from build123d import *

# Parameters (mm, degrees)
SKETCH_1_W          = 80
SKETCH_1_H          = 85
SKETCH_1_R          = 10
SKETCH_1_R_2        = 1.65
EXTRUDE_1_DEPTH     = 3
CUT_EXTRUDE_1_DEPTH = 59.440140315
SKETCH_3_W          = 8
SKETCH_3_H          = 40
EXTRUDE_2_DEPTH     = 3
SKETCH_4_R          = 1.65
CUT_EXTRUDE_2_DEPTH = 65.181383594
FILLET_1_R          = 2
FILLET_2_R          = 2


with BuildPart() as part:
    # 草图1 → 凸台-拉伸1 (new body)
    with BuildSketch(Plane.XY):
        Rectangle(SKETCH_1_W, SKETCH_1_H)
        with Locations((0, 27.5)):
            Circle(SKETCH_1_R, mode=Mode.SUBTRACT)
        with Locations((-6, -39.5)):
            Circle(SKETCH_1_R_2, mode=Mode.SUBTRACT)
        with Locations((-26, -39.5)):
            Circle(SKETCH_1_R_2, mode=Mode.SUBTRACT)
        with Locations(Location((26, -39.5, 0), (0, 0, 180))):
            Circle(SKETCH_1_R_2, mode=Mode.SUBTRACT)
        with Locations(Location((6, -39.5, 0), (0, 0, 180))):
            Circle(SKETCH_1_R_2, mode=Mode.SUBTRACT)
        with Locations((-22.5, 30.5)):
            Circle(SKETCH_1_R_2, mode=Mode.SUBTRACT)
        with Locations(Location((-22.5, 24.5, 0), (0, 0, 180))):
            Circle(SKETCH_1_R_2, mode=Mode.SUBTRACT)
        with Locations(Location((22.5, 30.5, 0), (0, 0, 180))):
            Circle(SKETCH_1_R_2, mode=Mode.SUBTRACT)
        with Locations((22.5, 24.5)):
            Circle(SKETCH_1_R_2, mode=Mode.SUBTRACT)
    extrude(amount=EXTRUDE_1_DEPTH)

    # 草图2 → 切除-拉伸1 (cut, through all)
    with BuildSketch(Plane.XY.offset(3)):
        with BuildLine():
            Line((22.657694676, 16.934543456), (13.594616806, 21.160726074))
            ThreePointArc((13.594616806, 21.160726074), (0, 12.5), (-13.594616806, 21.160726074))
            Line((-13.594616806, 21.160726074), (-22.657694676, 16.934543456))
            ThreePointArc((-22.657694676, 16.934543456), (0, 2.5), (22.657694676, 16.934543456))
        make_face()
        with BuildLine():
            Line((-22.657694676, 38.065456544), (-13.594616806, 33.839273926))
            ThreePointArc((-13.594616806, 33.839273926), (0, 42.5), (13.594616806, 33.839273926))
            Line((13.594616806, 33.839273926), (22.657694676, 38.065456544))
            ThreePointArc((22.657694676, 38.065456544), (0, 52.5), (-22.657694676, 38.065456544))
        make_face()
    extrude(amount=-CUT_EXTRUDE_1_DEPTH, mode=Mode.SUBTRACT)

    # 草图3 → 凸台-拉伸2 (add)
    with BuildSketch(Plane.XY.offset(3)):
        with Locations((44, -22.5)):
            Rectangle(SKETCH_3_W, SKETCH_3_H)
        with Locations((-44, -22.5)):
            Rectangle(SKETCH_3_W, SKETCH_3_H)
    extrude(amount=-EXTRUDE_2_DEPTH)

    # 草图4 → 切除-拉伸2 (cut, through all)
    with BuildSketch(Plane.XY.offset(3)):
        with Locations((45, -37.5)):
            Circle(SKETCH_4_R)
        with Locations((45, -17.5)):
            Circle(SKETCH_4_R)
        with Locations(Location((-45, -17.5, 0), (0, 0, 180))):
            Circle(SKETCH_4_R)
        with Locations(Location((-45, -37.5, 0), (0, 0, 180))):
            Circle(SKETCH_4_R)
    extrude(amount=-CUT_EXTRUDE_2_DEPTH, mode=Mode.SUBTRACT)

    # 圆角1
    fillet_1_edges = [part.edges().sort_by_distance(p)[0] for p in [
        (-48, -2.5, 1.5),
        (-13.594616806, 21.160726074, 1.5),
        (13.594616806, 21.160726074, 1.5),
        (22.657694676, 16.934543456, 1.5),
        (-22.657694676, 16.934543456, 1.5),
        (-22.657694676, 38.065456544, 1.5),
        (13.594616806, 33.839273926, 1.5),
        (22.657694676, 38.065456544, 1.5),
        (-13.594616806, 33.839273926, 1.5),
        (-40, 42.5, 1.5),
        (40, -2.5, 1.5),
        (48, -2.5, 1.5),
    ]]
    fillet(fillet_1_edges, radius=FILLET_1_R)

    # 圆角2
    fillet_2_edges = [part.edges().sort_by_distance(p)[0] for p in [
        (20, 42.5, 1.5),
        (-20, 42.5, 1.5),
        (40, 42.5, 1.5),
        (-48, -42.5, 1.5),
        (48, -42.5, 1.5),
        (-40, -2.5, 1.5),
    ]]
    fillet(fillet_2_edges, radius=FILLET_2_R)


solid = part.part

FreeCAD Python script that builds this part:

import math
import FreeCAD as App
import Part
import Sketcher

V = App.Vector
Q = App.Units.Quantity


def edges_at(feature, points):
    """Names of the edges that pass closest to the given points."""
    edges = feature.Shape.Edges
    near = lambda p: min(range(len(edges)), key=lambda i: edges[i].distToShape(Part.Vertex(*p))[0])
    return sorted({f"Edge{near(p) + 1}" for p in points})

doc = App.newDocument("Part")
body = doc.addObject("PartDesign::Body", "Body")

# Sketch on XY plane
sketch1 = body.newObject("Sketcher::SketchObject", "Sketch")
sketch1.AttachmentSupport = (doc.getObject("XY_Plane"), [""])
sketch1.MapMode = "FlatFace"
sketch1.addGeometry([
    Part.LineSegment(V(-40, 42.5, 0), V(-40, -42.5, 0)),  # 0
    Part.LineSegment(V(-40, -42.5, 0), V(40, -42.5, 0)),  # 1
    Part.LineSegment(V(40, -42.5, 0), V(40, 42.5, 0)),  # 2
    Part.LineSegment(V(40, 42.5, 0), V(-40, 42.5, 0)),  # 3
    Part.Circle(V(-26, -39.5, 0), V(0, 0, 1), 1.6),  # 4
    Part.Circle(V(-6, -39.5, 0), V(0, 0, 1), 1.6),  # 5
    Part.Circle(V(6, -39.5, 0), V(0, 0, 1), 1.6),  # 6
    Part.Circle(V(26, -39.5, 0), V(0, 0, 1), 1.6),  # 7
    Part.Circle(V(-22.5, 24.5, 0), V(0, 0, 1), 1.6),  # 8
    Part.Circle(V(-22.5, 30.5, 0), V(0, 0, 1), 1.6),  # 9
    Part.Circle(V(0, 27.5, 0), V(0, 0, 1), 10),  # 10
    Part.Circle(V(22.5, 24.5, 0), V(0, 0, 1), 1.6),  # 11
    Part.Circle(V(22.5, 30.5, 0), V(0, 0, 1), 1.6),  # 12
], False)
sketch1.addConstraint([
    Sketcher.Constraint("Coincident", 0, 2, 1, 1),
    Sketcher.Constraint("Coincident", 1, 2, 2, 1),
    Sketcher.Constraint("Coincident", 2, 2, 3, 1),
    Sketcher.Constraint("Coincident", 3, 2, 0, 1),
    Sketcher.Constraint("Vertical", 0),
    Sketcher.Constraint("Horizontal", 1),
    Sketcher.Constraint("Vertical", 2),
    Sketcher.Constraint("Horizontal", 3),
    Sketcher.Constraint("Equal", 4, 5),
    Sketcher.Constraint("Equal", 5, 6),
    Sketcher.Constraint("Equal", 6, 7),
    Sketcher.Constraint("Equal", 7, 8),
    Sketcher.Constraint("Equal", 8, 9),
    Sketcher.Constraint("Equal", 9, 11),
    Sketcher.Constraint("Equal", 11, 12),
    Sketcher.Constraint("Symmetric", 0, 2, 2, 2, -1, 1),
    Sketcher.Constraint("Symmetric", 5, 3, 6, 3, -2),
    Sketcher.Constraint("Symmetric", 4, 3, 7, 3, -2),
    Sketcher.Constraint("Symmetric", 8, 3, 11, 3, -2),
    Sketcher.Constraint("Symmetric", 9, 3, 12, 3, -2),
    Sketcher.Constraint("PointOnObject", 10, 3, -2),
    Sketcher.Constraint("Horizontal", 4, 3, 5, 3),
    Sketcher.Constraint("Vertical", 8, 3, 9, 3),
    Sketcher.Constraint("Diameter", 10, 20.0),
    Sketcher.Constraint("Diameter", 4, 3.3),
    Sketcher.Constraint("DistanceX", 1, 1, 1, 2, 80.0),
    Sketcher.Constraint("DistanceY", 0, 2, 0, 1, 85.0),
    Sketcher.Constraint("DistanceX", 4, 3, -1, 1, 26.0),
    Sketcher.Constraint("DistanceX", 5, 3, -1, 1, 6.0),
    Sketcher.Constraint("DistanceY", 4, 3, 8, 3, 64.0),
    Sketcher.Constraint("DistanceY", 8, 3, 9, 3, 6.0),
    Sketcher.Constraint("DistanceY", 8, 3, 10, 3, 3.0),
    Sketcher.Constraint("DistanceX", 8, 3, 11, 3, 45.0),
    Sketcher.Constraint("DistanceY", 0, 2, 4, 3, 3.0),
])
pad1 = body.newObject("PartDesign::Pad", "Pad")
pad1.Profile = sketch1
pad1.Length = 3

# Sketch on XY plane
sketch2 = body.newObject("Sketcher::SketchObject", "Sketch001")
sketch2.AttachmentSupport = (doc.getObject("XY_Plane"), [""])
sketch2.MapMode = "FlatFace"
sketch2.AttachmentOffset = App.Placement(V(0, 0, 3), App.Rotation())
sketch2.addGeometry([
    Part.LineSegment(V(23, 17, 0), V(14, 21, 0)),  # 0
    Part.ArcOfCircle(Part.Circle(V(0, 28, 0), V(0, 0, 1), 15), math.radians(-155), math.radians(-25)),  # 1
    Part.LineSegment(V(-14, 21, 0), V(-23, 17, 0)),  # 2
    Part.ArcOfCircle(Part.Circle(V(0, 28, 0), V(0, 0, 1), 25), math.radians(-155), math.radians(-25)),  # 3
    Part.LineSegment(V(-23, 38, 0), V(-14, 34, 0)),  # 4
    Part.ArcOfCircle(Part.Circle(V(0, 27, 0), V(0, 0, 1), 15), math.radians(25), math.radians(155)),  # 5
    Part.LineSegment(V(14, 34, 0), V(23, 38, 0)),  # 6
    Part.ArcOfCircle(Part.Circle(V(0, 28, 0), V(0, 0, 1), 25), math.radians(25), math.radians(155)),  # 7
], False)
sketch2.addConstraint([
    Sketcher.Constraint("Coincident", 0, 2, 1, 2),
    Sketcher.Constraint("Coincident", 1, 1, 2, 1),
    Sketcher.Constraint("Coincident", 2, 2, 3, 1),
    Sketcher.Constraint("Coincident", 3, 2, 0, 1),
    Sketcher.Constraint("Coincident", 4, 2, 5, 2),
    Sketcher.Constraint("Coincident", 5, 1, 6, 1),
    Sketcher.Constraint("Coincident", 6, 2, 7, 1),
    Sketcher.Constraint("Coincident", 7, 2, 4, 1),
    Sketcher.Constraint("Coincident", 3, 3, 1, 3),
    Sketcher.Constraint("Coincident", 5, 3, 1, 3),
    Sketcher.Constraint("Coincident", 7, 3, 1, 3),
    Sketcher.Constraint("Equal", 1, 5),
    Sketcher.Constraint("Equal", 3, 7),
    Sketcher.Constraint("Symmetric", 0, 2, 1, 1, -2),
    Sketcher.Constraint("Parallel", 0, 4),
    Sketcher.Constraint("Parallel", 2, 6),
    Sketcher.Constraint("Horizontal", 2, 2, 3, 2),
    Sketcher.Constraint("Horizontal", 4, 2, 5, 1),
    Sketcher.Constraint("Vertical", 1, 1, 4, 2),
    Sketcher.Constraint("Radius", 1, 15.0),
    Sketcher.Constraint("Radius", 3, 25.0),
    Sketcher.Constraint("Angle", 0, Q("155 deg")),
    Sketcher.Constraint("DistanceY", -1, 1, 1, 3, 27.5),
    Sketcher.Constraint("DistanceY", 0, 2, 6, 2, 16.90473),
])
pocket1 = body.newObject("PartDesign::Pocket", "Pocket")
pocket1.Profile = sketch2
pocket1.Type = "ThroughAll"

# Sketch on XY plane
sketch3 = body.newObject("Sketcher::SketchObject", "Sketch002")
sketch3.AttachmentSupport = (doc.getObject("XY_Plane"), [""])
sketch3.MapMode = "FlatFace"
sketch3.AttachmentOffset = App.Placement(V(0, 0, 3), App.Rotation())
sketch3.addGeometry([
    Part.LineSegment(V(40, -2, 0), V(40, -42, 0)),  # 0
    Part.LineSegment(V(40, -42, 0), V(48, -42, 0)),  # 1
    Part.LineSegment(V(48, -42, 0), V(48, -2, 0)),  # 2
    Part.LineSegment(V(48, -2, 0), V(40, -2, 0)),  # 3
    Part.LineSegment(V(-48, -2, 0), V(-48, -42, 0)),  # 4
    Part.LineSegment(V(-48, -42, 0), V(-40, -42, 0)),  # 5
    Part.LineSegment(V(-40, -42, 0), V(-40, -2, 0)),  # 6
    Part.LineSegment(V(-40, -2, 0), V(-48, -2, 0)),  # 7
], False)
sketch3.addConstraint([
    Sketcher.Constraint("Coincident", 0, 2, 1, 1),
    Sketcher.Constraint("Coincident", 1, 2, 2, 1),
    Sketcher.Constraint("Coincident", 2, 2, 3, 1),
    Sketcher.Constraint("Coincident", 3, 2, 0, 1),
    Sketcher.Constraint("Coincident", 4, 2, 5, 1),
    Sketcher.Constraint("Coincident", 5, 2, 6, 1),
    Sketcher.Constraint("Coincident", 6, 2, 7, 1),
    Sketcher.Constraint("Coincident", 7, 2, 4, 1),
    Sketcher.Constraint("Vertical", 0),
    Sketcher.Constraint("Horizontal", 1),
    Sketcher.Constraint("Vertical", 2),
    Sketcher.Constraint("Horizontal", 3),
    Sketcher.Constraint("Vertical", 4),
    Sketcher.Constraint("Horizontal", 5),
    Sketcher.Constraint("Vertical", 6),
    Sketcher.Constraint("Horizontal", 7),
    Sketcher.Constraint("Symmetric", 1, 2, 4, 2, -2),
    Sketcher.Constraint("Symmetric", 3, 2, 6, 2, -2),
    Sketcher.Constraint("DistanceX", 1, 1, 1, 2, 8.0),
    Sketcher.Constraint("DistanceY", 0, 2, 0, 1, 40.0),
    Sketcher.Constraint("DistanceX", -1, 1, 0, 2, 40.0),
    Sketcher.Constraint("DistanceY", 0, 2, -1, 1, 42.5),
])
pad2 = body.newObject("PartDesign::Pad", "Pad001")
pad2.Profile = sketch3
pad2.Length = 3
pad2.Reversed = True

# Sketch on XY plane
sketch4 = body.newObject("Sketcher::SketchObject", "Sketch003")
sketch4.AttachmentSupport = (doc.getObject("XY_Plane"), [""])
sketch4.MapMode = "FlatFace"
sketch4.AttachmentOffset = App.Placement(V(0, 0, 3), App.Rotation())
sketch4.addGeometry([
    Part.Circle(V(45, -37.5, 0), V(0, 0, 1), 1.6),
    Part.Circle(V(45, -17.5, 0), V(0, 0, 1), 1.6),
    Part.Circle(V(-45, -17.5, 0), V(0, 0, 1), 1.6),
    Part.Circle(V(-45, -37.5, 0), V(0, 0, 1), 1.6),
], False)
sketch4.addConstraint([
    Sketcher.Constraint("Equal", 0, 1),
    Sketcher.Constraint("Equal", 1, 2),
    Sketcher.Constraint("Equal", 2, 3),
    Sketcher.Constraint("Symmetric", 1, 3, 2, 3, -2),
    Sketcher.Constraint("Symmetric", 0, 3, 3, 3, -2),
    Sketcher.Constraint("Vertical", 0, 3, 1, 3),
    Sketcher.Constraint("Diameter", 0, 3.3),
    Sketcher.Constraint("DistanceX", -1, 1, 0, 3, 45.0),
    Sketcher.Constraint("DistanceY", 0, 3, 1, 3, 20.0),
    Sketcher.Constraint("DistanceY", 0, 3, -1, 1, 37.5),
])
pocket2 = body.newObject("PartDesign::Pocket", "Pocket001")
pocket2.Profile = sketch4
pocket2.Type = "ThroughAll"
doc.recompute()

fillet = body.newObject("PartDesign::Fillet", "Fillet")
fillet.Base = (pocket2, edges_at(pocket2, [
    (-48, -2.5, 1.5),
    (-13.595, 21.161, 1.5),
    (13.595, 21.161, 1.5),
    (22.658, 16.935, 1.5),
    (-22.658, 16.935, 1.5),
    (-22.658, 38.065, 1.5),
    (13.595, 33.839, 1.5),
    (22.658, 38.065, 1.5),
    (-13.595, 33.839, 1.5),
    (-40, 42.5, 1.5),
    (40, -2.5, 1.5),
    (48, -2.5, 1.5),
]))
fillet.Radius = 2
doc.recompute()

fillet2 = body.newObject("PartDesign::Fillet", "Fillet001")
fillet2.Base = (fillet, edges_at(fillet, [
    (20, 42.5, 1.5),
    (-20, 42.5, 1.5),
    (40, 42.5, 1.5),
    (-48, -42.5, 1.5),
    (48, -42.5, 1.5),
    (-40, -2.5, 1.5),
]))
fillet2.Radius = 2

doc.recompute()
